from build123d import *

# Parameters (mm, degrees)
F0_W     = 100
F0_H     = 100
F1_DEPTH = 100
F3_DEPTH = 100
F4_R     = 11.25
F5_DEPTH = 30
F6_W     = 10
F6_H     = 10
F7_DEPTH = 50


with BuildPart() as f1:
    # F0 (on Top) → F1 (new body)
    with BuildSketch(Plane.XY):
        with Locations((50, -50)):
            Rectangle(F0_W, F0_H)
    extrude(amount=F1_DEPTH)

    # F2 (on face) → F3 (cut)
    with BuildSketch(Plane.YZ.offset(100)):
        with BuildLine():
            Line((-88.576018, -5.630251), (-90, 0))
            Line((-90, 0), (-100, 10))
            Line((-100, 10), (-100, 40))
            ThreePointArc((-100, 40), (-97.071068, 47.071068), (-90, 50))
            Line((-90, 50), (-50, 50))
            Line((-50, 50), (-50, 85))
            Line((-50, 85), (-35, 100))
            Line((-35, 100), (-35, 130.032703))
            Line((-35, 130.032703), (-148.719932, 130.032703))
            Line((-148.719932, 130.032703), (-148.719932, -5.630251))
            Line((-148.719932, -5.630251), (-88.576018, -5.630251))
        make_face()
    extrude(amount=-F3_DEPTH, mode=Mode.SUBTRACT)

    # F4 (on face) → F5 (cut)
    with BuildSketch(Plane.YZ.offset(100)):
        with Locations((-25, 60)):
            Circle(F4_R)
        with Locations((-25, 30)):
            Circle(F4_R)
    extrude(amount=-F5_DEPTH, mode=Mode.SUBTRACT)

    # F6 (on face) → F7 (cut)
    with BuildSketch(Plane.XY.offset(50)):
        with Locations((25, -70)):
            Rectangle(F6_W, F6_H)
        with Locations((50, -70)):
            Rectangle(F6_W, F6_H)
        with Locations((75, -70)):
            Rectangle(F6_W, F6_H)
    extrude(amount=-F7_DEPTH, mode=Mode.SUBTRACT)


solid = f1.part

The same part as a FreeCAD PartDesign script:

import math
import FreeCAD as App
import Part
import Sketcher

V = App.Vector
Q = App.Units.Quantity

doc = App.newDocument("Part")
body = doc.addObject("PartDesign::Body", "Body")

sketch1 = body.newObject("Sketcher::SketchObject", "Sketch")
sketch1.AttachmentSupport = (doc.getObject("XY_Plane"), [""])
sketch1.MapMode = "FlatFace"
sketch1.addGeometry(Part.LineSegment(V(0, 0, 0), V(0, -100, 0)), False)
sketch1.addGeometry(Part.LineSegment(V(0, -100, 0), V(100, -100, 0)), False)
sketch1.addGeometry(Part.LineSegment(V(100, -100, 0), V(100, 0, 0)), False)
sketch1.addGeometry(Part.LineSegment(V(100, 0, 0), V(0, 0, 0)), False)
sketch1.addConstraint(Sketcher.Constraint("Coincident", 0, 2, 1, 1))
sketch1.addConstraint(Sketcher.Constraint("Coincident", 1, 2, 2, 1))
sketch1.addConstraint(Sketcher.Constraint("Coincident", 2, 2, 3, 1))
sketch1.addConstraint(Sketcher.Constraint("Coincident", 3, 2, 0, 1))
sketch1.addConstraint(Sketcher.Constraint("Vertical", 0))
sketch1.addConstraint(Sketcher.Constraint("Horizontal", 1))
sketch1.addConstraint(Sketcher.Constraint("Vertical", 2))
sketch1.addConstraint(Sketcher.Constraint("Horizontal", 3))
sketch1.addConstraint(Sketcher.Constraint("Coincident", 3, 2, -1, 1))
sketch1.addConstraint(Sketcher.Constraint("Equal", 3, 0))
sketch1.addConstraint(Sketcher.Constraint("DistanceX", 1, 1, 1, 2, 100.0))
pad1 = body.newObject("PartDesign::Pad", "Pad")
pad1.Profile = sketch1
pad1.Length = 100

sketch2 = body.newObject("Sketcher::SketchObject", "Sketch001")
sketch2.AttachmentSupport = (doc.getObject("YZ_Plane"), [""])
sketch2.MapMode = "FlatFace"
sketch2.AttachmentOffset = App.Placement(V(0, 0, 100), App.Rotation())
sketch2.addGeometry(Part.LineSegment(V(-89, -6, 0), V(-90, 0, 0)), False)
sketch2.addGeometry(Part.LineSegment(V(-90, 0, 0), V(-100, 10, 0)), False)
sketch2.addGeometry(Part.LineSegment(V(-100, 10, 0), V(-100, 40, 0)), False)
sketch2.addGeometry(Part.ArcOfCircle(Part.Circle(V(-90, 40, 0), V(0, 0, 1), 10), math.radians(90), math.radians(180)), False)
sketch2.addGeometry(Part.LineSegment(V(-90, 50, 0), V(-50, 50, 0)), False)
sketch2.addGeometry(Part.LineSegment(V(-50, 50, 0), V(-50, 85, 0)), False)
sketch2.addGeometry(Part.LineSegment(V(-50, 85, 0), V(-35, 100, 0)), False)
sketch2.addGeometry(Part.LineSegment(V(-35, 100, 0), V(-35, 130, 0)), False)
sketch2.addGeometry(Part.LineSegment(V(-35, 130, 0), V(-149, 130, 0)), False)
sketch2.addGeometry(Part.LineSegment(V(-149, 130, 0), V(-149, -6, 0)), False)
sketch2.addGeometry(Part.LineSegment(V(-149, -6, 0), V(-89, -6, 0)), False)
sketch2.addConstraint(Sketcher.Constraint("Coincident", 0, 2, 1, 1))
sketch2.addConstraint(Sketcher.Constraint("Coincident", 1, 2, 2, 1))
sketch2.addConstraint(Sketcher.Constraint("Tangent", 2, 2, 3, 2))
sketch2.addConstraint(Sketcher.Constraint("Tangent", 3, 1, 4, 1))
sketch2.addConstraint(Sketcher.Constraint("Coincident", 4, 2, 5, 1))
sketch2.addConstraint(Sketcher.Constraint("Coincident", 5, 2, 6, 1))
sketch2.addConstraint(Sketcher.Constraint("Coincident", 6, 2, 7, 1))
sketch2.addConstraint(Sketcher.Constraint("Coincident", 7, 2, 8, 1))
sketch2.addConstraint(Sketcher.Constraint("Coincident", 8, 2, 9, 1))
sketch2.addConstraint(Sketcher.Constraint("Coincident", 9, 2, 10, 1))
sketch2.addConstraint(Sketcher.Constraint("Coincident", 10, 2, 0, 1))
sketch2.addConstraint(Sketcher.Constraint("Vertical", 2))
sketch2.addConstraint(Sketcher.Constraint("Horizontal", 4))
sketch2.addConstraint(Sketcher.Constraint("Vertical", 5))
sketch2.addConstraint(Sketcher.Constraint("Vertical", 7))
sketch2.addConstraint(Sketcher.Constraint("Horizontal", 8))
sketch2.addConstraint(Sketcher.Constraint("Vertical", 9))
sketch2.addConstraint(Sketcher.Constraint("Horizontal", 10))
sketch2.addConstraint(Sketcher.Constraint("PointOnObject", 0, 2, -1))
sketch2.addConstraint(Sketcher.Constraint("Perpendicular", 1, 6))
sketch2.addConstraint(Sketcher.Constraint("Vertical", 3, 3, 0, 2))
sketch2.addConstraint(Sketcher.Constraint("Radius", 3, 9.999999))
sketch2.addConstraint(Sketcher.Constraint("DistanceX", 4, 1, 4, 2, 40.0))
sketch2.addConstraint(Sketcher.Constraint("DistanceY", 2, 1, 2, 2, 30.0))
sketch2.addConstraint(Sketcher.Constraint("DistanceY", 5, 1, 5, 2, 35.0))
sketch2.addConstraint(Sketcher.Constraint("Angle", 1, Q("135 deg")))
sketch2.addConstraint(Sketcher.Constraint("DistanceX", 3, 3, -1, 1, 90.000001))
sketch2.addConstraint(Sketcher.Constraint("DistanceX", 6, 2, -1, 1, 35.0))
sketch2.addConstraint(Sketcher.Constraint("DistanceX", 8, 2, 8, 1, 113.719932))
sketch2.addConstraint(Sketcher.Constraint("DistanceX", 10, 1, 10, 2, 60.143914))
sketch2.addConstraint(Sketcher.Constraint("DistanceY", 7, 1, 7, 2, 30.032703))
sketch2.addConstraint(Sketcher.Constraint("DistanceY", 9, 2, 9, 1, 135.662954))
pocket1 = body.newObject("PartDesign::Pocket", "Pocket")
pocket1.Profile = sketch2
pocket1.Length = 100

sketch3 = body.newObject("Sketcher::SketchObject", "Sketch002")
sketch3.AttachmentSupport = (doc.getObject("YZ_Plane"), [""])
sketch3.MapMode = "FlatFace"
sketch3.AttachmentOffset = App.Placement(V(0, 0, 100), App.Rotation())
sketch3.addGeometry(Part.Circle(V(-25, 60, 0), V(0, 0, 1), 11), False)
sketch3.addGeometry(Part.Circle(V(-25, 30, 0), V(0, 0, 1), 11), False)
sketch3.addConstraint(Sketcher.Constraint("Equal", 0, 1))
sketch3.addConstraint(Sketcher.Constraint("Vertical", 0, 3, 1, 3))
sketch3.addConstraint(Sketcher.Constraint("Diameter", 0, 22.5))
sketch3.addConstraint(Sketcher.Constraint("DistanceX", 0, 3, -1, 1, 25.0))
sketch3.addConstraint(Sketcher.Constraint("DistanceY", -1, 1, 0, 3, 60.0))
sketch3.addConstraint(Sketcher.Constraint("DistanceY", -1, 1, 1, 3, 30.0))
pocket2 = body.newObject("PartDesign::Pocket", "Pocket001")
pocket2.Profile = sketch3
pocket2.Length = 30

sketch4 = body.newObject("Sketcher::SketchObject", "Sketch003")
sketch4.AttachmentSupport = (doc.getObject("XY_Plane"), [""])
sketch4.MapMode = "FlatFace"
sketch4.AttachmentOffset = App.Placement(V(0, 0, 50), App.Rotation())
sketch4.addGeometry(Part.LineSegment(V(20, -65, 0), V(20, -75, 0)), False)
sketch4.addGeometry(Part.LineSegment(V(20, -75, 0), V(30, -75, 0)), False)
sketch4.addGeometry(Part.LineSegment(V(30, -75, 0), V(30, -65, 0)), False)
sketch4.addGeometry(Part.LineSegment(V(30, -65, 0), V(20, -65, 0)), False)
sketch4.addGeometry(Part.LineSegment(V(45, -65, 0), V(45, -75, 0)), False)
sketch4.addGeometry(Part.LineSegment(V(45, -75, 0), V(55, -75, 0)), False)
sketch4.addGeometry(Part.LineSegment(V(55, -75, 0), V(55, -65, 0)), False)
sketch4.addGeometry(Part.LineSegment(V(55, -65, 0), V(45, -65, 0)), False)
sketch4.addGeometry(Part.LineSegment(V(70, -65, 0), V(70, -75, 0)), False)
sketch4.addGeometry(Part.LineSegment(V(70, -75, 0), V(80, -75, 0)), False)
sketch4.addGeometry(Part.LineSegment(V(80, -75, 0), V(80, -65, 0)), False)
sketch4.addGeometry(Part.LineSegment(V(80, -65, 0), V(70, -65, 0)), False)
sketch4.addConstraint(Sketcher.Constraint("Coincident", 0, 2, 1, 1))
sketch4.addConstraint(Sketcher.Constraint("Coincident", 1, 2, 2, 1))
sketch4.addConstraint(Sketcher.Constraint("Coincident", 2, 2, 3, 1))
sketch4.addConstraint(Sketcher.Constraint("Coincident", 3, 2, 0, 1))
sketch4.addConstraint(Sketcher.Constraint("Coincident", 4, 2, 5, 1))
sketch4.addConstraint(Sketcher.Constraint("Coincident", 5, 2, 6, 1))
sketch4.addConstraint(Sketcher.Constraint("Coincident", 6, 2, 7, 1))
sketch4.addConstraint(Sketcher.Constraint("Coincident", 7, 2, 4, 1))
sketch4.addConstraint(Sketcher.Constraint("Coincident", 8, 2, 9, 1))
sketch4.addConstraint(Sketcher.Constraint("Coincident", 9, 2, 10, 1))
sketch4.addConstraint(Sketcher.Constraint("Coincident", 10, 2, 11, 1))
sketch4.addConstraint(Sketcher.Constraint("Coincident", 11, 2, 8, 1))
sketch4.addConstraint(Sketcher.Constraint("Vertical", 0))
sketch4.addConstraint(Sketcher.Constraint("Horizontal", 1))
sketch4.addConstraint(Sketcher.Constraint("Vertical", 2))
sketch4.addConstraint(Sketcher.Constraint("Horizontal", 3))
sketch4.addConstraint(Sketcher.Constraint("Vertical", 4))
sketch4.addConstraint(Sketcher.Constraint("Horizontal", 5))
sketch4.addConstraint(Sketcher.Constraint("Vertical", 6))
sketch4.addConstraint(Sketcher.Constraint("Horizontal", 7))
sketch4.addConstraint(Sketcher.Constraint("Vertical", 8))
sketch4.addConstraint(Sketcher.Constraint("Horizontal", 9))
sketch4.addConstraint(Sketcher.Constraint("Vertical", 10))
sketch4.addConstraint(Sketcher.Constraint("Horizontal", 11))
sketch4.addConstraint(Sketcher.Constraint("Horizontal", 1, 2, 4, 2))
sketch4.addConstraint(Sketcher.Constraint("Horizontal", 3, 2, 6, 2))
sketch4.addConstraint(Sketcher.Constraint("Horizontal", 5, 2, 8, 2))
sketch4.addConstraint(Sketcher.Constraint("Horizontal", 7, 2, 10, 2))
sketch4.addConstraint(Sketcher.Constraint("Equal", 3, 5))
sketch4.addConstraint(Sketcher.Constraint("Equal", 7, 9))
sketch4.addConstraint(Sketcher.Constraint("Equal", 11, 0))
sketch4.addConstraint(Sketcher.Constraint("DistanceX", 1, 1, 1, 2, 10.0))
sketch4.addConstraint(Sketcher.Constraint("DistanceX", -1, 1, 0, 2, 20.0))
sketch4.addConstraint(Sketcher.Constraint("DistanceY", 0, 2, -1, 1, 75.0))
sketch4.addConstraint(Sketcher.Constraint("DistanceX", -1, 1, 4, 2, 45.0))
sketch4.addConstraint(Sketcher.Constraint("DistanceX", -1, 1, 8, 2, 70.0))
pocket3 = body.newObject("PartDesign::Pocket", "Pocket002")
pocket3.Profile = sketch4
pocket3.Length = 50

doc.recompute()
